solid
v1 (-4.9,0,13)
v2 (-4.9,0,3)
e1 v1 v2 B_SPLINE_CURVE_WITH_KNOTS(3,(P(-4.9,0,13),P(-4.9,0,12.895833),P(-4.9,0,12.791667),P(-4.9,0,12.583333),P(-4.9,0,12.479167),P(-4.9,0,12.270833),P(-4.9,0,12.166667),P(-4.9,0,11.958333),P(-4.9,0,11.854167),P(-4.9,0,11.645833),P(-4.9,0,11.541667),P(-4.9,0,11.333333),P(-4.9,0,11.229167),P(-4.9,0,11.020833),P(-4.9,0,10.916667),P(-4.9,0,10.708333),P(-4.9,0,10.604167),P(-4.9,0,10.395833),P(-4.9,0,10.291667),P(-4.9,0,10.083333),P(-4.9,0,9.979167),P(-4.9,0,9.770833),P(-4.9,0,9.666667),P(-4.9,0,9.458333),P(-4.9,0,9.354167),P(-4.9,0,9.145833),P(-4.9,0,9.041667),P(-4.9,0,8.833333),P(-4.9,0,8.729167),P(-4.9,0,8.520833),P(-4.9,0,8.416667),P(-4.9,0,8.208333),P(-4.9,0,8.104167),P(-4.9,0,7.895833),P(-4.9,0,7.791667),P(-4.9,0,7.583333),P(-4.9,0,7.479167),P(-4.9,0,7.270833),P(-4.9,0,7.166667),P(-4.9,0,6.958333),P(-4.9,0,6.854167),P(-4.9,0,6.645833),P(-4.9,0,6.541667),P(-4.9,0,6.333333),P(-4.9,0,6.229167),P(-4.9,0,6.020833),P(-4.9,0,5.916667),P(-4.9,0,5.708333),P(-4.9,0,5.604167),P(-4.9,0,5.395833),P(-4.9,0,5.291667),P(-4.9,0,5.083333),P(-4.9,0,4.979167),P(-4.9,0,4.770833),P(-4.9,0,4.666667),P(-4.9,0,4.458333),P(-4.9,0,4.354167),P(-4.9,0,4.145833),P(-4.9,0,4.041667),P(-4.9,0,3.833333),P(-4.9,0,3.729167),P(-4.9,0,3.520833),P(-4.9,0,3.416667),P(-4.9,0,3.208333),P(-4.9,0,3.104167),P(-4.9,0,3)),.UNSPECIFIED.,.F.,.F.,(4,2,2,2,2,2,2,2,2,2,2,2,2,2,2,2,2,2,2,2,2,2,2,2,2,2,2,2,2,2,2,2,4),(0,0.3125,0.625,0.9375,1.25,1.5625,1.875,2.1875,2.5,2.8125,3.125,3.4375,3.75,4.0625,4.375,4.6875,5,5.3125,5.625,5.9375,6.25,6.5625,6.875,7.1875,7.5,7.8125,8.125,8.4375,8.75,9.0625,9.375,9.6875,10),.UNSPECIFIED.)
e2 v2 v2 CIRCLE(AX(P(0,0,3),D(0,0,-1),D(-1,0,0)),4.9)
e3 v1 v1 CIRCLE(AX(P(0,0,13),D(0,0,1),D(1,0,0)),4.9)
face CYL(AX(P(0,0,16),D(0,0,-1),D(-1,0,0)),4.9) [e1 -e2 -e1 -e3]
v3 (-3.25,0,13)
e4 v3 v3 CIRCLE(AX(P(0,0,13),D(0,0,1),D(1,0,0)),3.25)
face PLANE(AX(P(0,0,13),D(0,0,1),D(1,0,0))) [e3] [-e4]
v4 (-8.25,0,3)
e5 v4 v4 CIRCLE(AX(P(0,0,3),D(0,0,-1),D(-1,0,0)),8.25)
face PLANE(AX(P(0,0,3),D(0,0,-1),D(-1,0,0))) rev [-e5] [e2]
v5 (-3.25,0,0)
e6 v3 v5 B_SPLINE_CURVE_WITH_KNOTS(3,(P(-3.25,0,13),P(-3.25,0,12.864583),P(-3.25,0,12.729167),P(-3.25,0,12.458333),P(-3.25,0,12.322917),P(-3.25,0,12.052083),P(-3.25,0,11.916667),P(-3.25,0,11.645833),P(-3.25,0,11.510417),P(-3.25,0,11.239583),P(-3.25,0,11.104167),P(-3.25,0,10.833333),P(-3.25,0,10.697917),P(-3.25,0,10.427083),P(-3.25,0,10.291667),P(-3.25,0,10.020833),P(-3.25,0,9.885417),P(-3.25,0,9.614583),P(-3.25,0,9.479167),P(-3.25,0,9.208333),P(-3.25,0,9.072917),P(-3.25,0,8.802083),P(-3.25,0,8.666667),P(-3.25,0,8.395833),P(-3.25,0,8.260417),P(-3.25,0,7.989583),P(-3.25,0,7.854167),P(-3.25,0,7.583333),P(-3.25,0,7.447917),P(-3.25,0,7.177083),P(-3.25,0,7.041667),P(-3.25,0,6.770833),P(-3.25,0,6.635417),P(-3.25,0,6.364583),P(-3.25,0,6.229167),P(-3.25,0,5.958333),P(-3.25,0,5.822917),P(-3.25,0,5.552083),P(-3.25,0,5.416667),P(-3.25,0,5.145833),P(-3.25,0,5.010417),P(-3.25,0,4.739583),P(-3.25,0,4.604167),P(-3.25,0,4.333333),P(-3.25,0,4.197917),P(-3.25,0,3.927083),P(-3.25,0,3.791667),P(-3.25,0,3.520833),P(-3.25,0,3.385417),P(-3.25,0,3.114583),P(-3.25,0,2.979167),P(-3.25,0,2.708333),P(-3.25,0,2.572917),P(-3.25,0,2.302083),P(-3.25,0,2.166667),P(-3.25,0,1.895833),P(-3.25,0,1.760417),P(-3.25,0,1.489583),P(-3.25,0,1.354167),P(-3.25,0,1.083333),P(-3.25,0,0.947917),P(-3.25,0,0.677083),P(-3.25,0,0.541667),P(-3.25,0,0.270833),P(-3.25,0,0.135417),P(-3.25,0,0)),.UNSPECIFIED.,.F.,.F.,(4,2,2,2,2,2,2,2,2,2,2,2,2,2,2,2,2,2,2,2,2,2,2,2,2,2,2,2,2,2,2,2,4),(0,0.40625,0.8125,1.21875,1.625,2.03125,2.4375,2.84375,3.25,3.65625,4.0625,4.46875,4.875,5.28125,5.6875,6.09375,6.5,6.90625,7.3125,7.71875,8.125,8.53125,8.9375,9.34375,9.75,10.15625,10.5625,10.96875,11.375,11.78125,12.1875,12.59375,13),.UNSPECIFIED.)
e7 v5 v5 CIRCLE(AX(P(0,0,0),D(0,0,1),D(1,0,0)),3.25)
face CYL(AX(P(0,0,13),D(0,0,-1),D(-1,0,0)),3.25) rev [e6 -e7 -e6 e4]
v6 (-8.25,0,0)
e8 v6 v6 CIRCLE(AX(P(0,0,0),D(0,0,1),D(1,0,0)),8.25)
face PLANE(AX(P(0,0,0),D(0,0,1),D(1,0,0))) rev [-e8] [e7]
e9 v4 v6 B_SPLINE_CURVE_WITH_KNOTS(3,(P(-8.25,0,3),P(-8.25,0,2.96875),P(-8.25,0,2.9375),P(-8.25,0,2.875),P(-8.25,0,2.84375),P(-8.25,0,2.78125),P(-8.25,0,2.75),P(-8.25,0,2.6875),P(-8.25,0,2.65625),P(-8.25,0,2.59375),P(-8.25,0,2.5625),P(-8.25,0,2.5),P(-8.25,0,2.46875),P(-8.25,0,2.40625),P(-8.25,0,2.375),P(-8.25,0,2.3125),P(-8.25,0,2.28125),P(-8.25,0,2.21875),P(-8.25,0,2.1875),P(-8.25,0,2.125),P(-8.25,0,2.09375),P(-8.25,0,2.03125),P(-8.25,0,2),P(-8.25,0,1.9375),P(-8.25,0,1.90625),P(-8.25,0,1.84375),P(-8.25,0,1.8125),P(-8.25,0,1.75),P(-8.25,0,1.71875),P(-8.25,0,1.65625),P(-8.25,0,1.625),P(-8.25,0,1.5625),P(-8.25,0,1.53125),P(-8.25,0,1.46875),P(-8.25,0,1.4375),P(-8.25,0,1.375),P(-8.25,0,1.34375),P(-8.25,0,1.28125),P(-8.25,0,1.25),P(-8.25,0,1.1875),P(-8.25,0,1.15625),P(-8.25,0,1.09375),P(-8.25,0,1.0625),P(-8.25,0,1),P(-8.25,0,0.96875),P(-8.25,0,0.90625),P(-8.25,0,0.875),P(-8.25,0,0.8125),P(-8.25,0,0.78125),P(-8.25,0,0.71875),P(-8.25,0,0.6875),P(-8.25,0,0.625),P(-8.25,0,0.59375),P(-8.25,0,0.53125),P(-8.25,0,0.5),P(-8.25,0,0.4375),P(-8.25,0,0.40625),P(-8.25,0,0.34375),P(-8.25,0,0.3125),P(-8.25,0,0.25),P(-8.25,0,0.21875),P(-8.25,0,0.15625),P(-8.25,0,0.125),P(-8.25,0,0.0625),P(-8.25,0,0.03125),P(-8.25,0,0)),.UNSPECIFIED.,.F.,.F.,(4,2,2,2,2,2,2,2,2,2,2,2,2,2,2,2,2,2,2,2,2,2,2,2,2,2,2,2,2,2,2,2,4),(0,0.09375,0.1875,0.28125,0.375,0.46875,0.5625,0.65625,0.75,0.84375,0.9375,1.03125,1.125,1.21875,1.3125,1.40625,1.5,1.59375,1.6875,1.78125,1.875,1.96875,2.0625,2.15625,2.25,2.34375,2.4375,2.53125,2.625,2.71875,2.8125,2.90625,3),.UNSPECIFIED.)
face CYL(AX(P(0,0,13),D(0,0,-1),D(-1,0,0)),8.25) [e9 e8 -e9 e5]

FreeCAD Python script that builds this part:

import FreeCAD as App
import Part
import Sketcher
from FreeCAD import Vector
Q = App.Units.Quantity

doc = App.newDocument("Part")
body = doc.addObject("PartDesign::Body", "Body")

sketch1 = body.newObject("Sketcher::SketchObject", "Sketch")
sketch1.AttachmentSupport = (doc.getObject("XY_Plane"), [""])
sketch1.MapMode = "FlatFace"
sketch1.addGeometry([
    Part.Circle(Vector(0, 0, 0), Vector(0, 0, 1), 8.2),
    Part.Circle(Vector(0, 0, 0), Vector(0, 0, 1), 3.2),
], False)
sketch1.addConstraint([
    Sketcher.Constraint("Coincident", 0, 3, -1, 1),
    Sketcher.Constraint("Coincident", 1, 3, -1, 1),
    Sketcher.Constraint("Diameter", 0, Q("16.5 mm")),
    Sketcher.Constraint("Diameter", 1, Q("6.5 mm")),
])
pad1 = body.newObject("PartDesign::Pad", "Pad")
pad1.Profile = sketch1
pad1.Length = 13

sketch2 = body.newObject("Sketcher::SketchObject", "Sketch001")
sketch2.AttachmentSupport = (doc.getObject("XY_Plane"), [""])
sketch2.MapMode = "FlatFace"
sketch2.AttachmentOffset = App.Placement(Vector(0, 0, 3), App.Rotation())
sketch2.addGeometry([
    Part.Circle(Vector(0, 0, 0), Vector(0, 0, 1), 14.9),
    Part.Circle(Vector(0, 0, 0), Vector(0, 0, 1), 4.9),
], False)
sketch2.addConstraint([
    Sketcher.Constraint("Coincident", 0, 3, -1, 1),
    Sketcher.Constraint("Coincident", 1, 3, -1, 1),
    Sketcher.Constraint("Diameter", 0, Q("29.8 mm")),
    Sketcher.Constraint("Diameter", 1, Q("9.8 mm")),
])
pocket1 = body.newObject("PartDesign::Pocket", "Pocket")
pocket1.Profile = sketch2
pocket1.Length = 13
pocket1.Reversed = True

doc.recompute()
